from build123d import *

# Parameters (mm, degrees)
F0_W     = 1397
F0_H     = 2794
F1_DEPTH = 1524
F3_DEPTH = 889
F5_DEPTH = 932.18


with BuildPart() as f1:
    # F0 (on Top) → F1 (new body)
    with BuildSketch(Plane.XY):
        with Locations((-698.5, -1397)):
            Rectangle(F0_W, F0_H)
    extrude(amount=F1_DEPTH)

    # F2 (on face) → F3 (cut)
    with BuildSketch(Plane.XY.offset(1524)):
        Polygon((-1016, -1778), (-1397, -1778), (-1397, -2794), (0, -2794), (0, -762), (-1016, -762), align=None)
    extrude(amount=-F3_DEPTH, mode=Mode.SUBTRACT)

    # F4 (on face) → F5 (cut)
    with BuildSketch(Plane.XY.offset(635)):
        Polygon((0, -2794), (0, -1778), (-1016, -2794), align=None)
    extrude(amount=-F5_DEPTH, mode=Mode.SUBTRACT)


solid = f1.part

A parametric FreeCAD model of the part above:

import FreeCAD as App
import Part
import Sketcher
Q = App.Units.Quantity


def add_polygon(sketch, points):
    """Adds a closed chain of lines whose ends are joined by coincident constraints."""
    first, n = sketch.GeometryCount, len(points)
    for a, b in zip(points, points[1:] + points[:1]):
        sketch.addGeometry(Part.LineSegment(App.Vector(*a, 0), App.Vector(*b, 0)), False)
    for i in range(n):
        sketch.addConstraint(Sketcher.Constraint("Coincident", first + i, 2, first + (i + 1) % n, 1))

doc = App.newDocument("Part")
body = doc.addObject("PartDesign::Body", "Body")

sketch1 = doc.addObject("Sketcher::SketchObject", "Sketch")
body.addObject(sketch1)
sketch1.AttachmentSupport = (doc.XY_Plane, [""])
sketch1.MapMode = "FlatFace"
add_polygon(sketch1, [(-1397, 0), (-1397, -2794), (0, -2794), (0, 0)])
sketch1.addConstraint([
    Sketcher.Constraint("Vertical", 0),
    Sketcher.Constraint("Horizontal", 1),
    Sketcher.Constraint("Vertical", 2),
    Sketcher.Constraint("Horizontal", 3),
    Sketcher.Constraint("Coincident", 2, 2, -1, 1),
    Sketcher.Constraint("DistanceX", 1, 1, 1, 2, Q("55 in")),
    Sketcher.Constraint("DistanceY", 0, 2, 0, 1, Q("110 in")),
])
pad1 = doc.addObject("PartDesign::Pad", "Pad")
body.addObject(pad1)
pad1.Profile = sketch1
pad1.Length = Q("60 in")

sketch2 = doc.addObject("Sketcher::SketchObject", "Sketch001")
body.addObject(sketch2)
sketch2.AttachmentSupport = (doc.XY_Plane, [""])
sketch2.MapMode = "FlatFace"
sketch2.AttachmentOffset = App.Placement(App.Vector(0, 0, 60 * 25.4), App.Rotation())
add_polygon(sketch2, [(-1016, -1778), (-1397, -1778), (-1397, -2794), (0, -2794), (0, -762), (-1016, -762)])
sketch2.addConstraint([
    Sketcher.Constraint("Horizontal", 0),
    Sketcher.Constraint("Vertical", 1),
    Sketcher.Constraint("Horizontal", 2),
    Sketcher.Constraint("Vertical", 3),
    Sketcher.Constraint("Horizontal", 4),
    Sketcher.Constraint("Vertical", 5),
    Sketcher.Constraint("PointOnObject", 2, 2, -2),
    Sketcher.Constraint("Equal", 4, 1),
    Sketcher.Constraint("Equal", 1, 5),
    Sketcher.Constraint("DistanceX", 0, 2, 0, 1, Q("15 in")),
    Sketcher.Constraint("DistanceX", 2, 1, 2, 2, Q("55 in")),
    Sketcher.Constraint("DistanceY", 0, 2, -1, 1, Q("70 in")),
])
pocket1 = doc.addObject("PartDesign::Pocket", "Pocket")
body.addObject(pocket1)
pocket1.Profile = sketch2
pocket1.Length = Q("35 in")

sketch3 = doc.addObject("Sketcher::SketchObject", "Sketch002")
body.addObject(sketch3)
sketch3.AttachmentSupport = (doc.XY_Plane, [""])
sketch3.MapMode = "FlatFace"
sketch3.AttachmentOffset = App.Placement(App.Vector(0, 0, 25 * 25.4), App.Rotation())
add_polygon(sketch3, [(0, -2794), (0, -1778), (-1016, -2794)])
sketch3.addConstraint([
    Sketcher.Constraint("Vertical", 0),
    Sketcher.Constraint("Horizontal", 2),
    Sketcher.Constraint("PointOnObject", 0, 2, -2),
    Sketcher.Constraint("Equal", 2, 0),
    Sketcher.Constraint("DistanceX", 2, 1, 2, 2, Q("40 in")),
    Sketcher.Constraint("DistanceY", 0, 2, -1, 1, Q("70 in")),
])
pocket2 = doc.addObject("PartDesign::Pocket", "Pocket001")
body.addObject(pocket2)
pocket2.Profile = sketch3
pocket2.Length = Q("36.7 in")

doc.recompute()
